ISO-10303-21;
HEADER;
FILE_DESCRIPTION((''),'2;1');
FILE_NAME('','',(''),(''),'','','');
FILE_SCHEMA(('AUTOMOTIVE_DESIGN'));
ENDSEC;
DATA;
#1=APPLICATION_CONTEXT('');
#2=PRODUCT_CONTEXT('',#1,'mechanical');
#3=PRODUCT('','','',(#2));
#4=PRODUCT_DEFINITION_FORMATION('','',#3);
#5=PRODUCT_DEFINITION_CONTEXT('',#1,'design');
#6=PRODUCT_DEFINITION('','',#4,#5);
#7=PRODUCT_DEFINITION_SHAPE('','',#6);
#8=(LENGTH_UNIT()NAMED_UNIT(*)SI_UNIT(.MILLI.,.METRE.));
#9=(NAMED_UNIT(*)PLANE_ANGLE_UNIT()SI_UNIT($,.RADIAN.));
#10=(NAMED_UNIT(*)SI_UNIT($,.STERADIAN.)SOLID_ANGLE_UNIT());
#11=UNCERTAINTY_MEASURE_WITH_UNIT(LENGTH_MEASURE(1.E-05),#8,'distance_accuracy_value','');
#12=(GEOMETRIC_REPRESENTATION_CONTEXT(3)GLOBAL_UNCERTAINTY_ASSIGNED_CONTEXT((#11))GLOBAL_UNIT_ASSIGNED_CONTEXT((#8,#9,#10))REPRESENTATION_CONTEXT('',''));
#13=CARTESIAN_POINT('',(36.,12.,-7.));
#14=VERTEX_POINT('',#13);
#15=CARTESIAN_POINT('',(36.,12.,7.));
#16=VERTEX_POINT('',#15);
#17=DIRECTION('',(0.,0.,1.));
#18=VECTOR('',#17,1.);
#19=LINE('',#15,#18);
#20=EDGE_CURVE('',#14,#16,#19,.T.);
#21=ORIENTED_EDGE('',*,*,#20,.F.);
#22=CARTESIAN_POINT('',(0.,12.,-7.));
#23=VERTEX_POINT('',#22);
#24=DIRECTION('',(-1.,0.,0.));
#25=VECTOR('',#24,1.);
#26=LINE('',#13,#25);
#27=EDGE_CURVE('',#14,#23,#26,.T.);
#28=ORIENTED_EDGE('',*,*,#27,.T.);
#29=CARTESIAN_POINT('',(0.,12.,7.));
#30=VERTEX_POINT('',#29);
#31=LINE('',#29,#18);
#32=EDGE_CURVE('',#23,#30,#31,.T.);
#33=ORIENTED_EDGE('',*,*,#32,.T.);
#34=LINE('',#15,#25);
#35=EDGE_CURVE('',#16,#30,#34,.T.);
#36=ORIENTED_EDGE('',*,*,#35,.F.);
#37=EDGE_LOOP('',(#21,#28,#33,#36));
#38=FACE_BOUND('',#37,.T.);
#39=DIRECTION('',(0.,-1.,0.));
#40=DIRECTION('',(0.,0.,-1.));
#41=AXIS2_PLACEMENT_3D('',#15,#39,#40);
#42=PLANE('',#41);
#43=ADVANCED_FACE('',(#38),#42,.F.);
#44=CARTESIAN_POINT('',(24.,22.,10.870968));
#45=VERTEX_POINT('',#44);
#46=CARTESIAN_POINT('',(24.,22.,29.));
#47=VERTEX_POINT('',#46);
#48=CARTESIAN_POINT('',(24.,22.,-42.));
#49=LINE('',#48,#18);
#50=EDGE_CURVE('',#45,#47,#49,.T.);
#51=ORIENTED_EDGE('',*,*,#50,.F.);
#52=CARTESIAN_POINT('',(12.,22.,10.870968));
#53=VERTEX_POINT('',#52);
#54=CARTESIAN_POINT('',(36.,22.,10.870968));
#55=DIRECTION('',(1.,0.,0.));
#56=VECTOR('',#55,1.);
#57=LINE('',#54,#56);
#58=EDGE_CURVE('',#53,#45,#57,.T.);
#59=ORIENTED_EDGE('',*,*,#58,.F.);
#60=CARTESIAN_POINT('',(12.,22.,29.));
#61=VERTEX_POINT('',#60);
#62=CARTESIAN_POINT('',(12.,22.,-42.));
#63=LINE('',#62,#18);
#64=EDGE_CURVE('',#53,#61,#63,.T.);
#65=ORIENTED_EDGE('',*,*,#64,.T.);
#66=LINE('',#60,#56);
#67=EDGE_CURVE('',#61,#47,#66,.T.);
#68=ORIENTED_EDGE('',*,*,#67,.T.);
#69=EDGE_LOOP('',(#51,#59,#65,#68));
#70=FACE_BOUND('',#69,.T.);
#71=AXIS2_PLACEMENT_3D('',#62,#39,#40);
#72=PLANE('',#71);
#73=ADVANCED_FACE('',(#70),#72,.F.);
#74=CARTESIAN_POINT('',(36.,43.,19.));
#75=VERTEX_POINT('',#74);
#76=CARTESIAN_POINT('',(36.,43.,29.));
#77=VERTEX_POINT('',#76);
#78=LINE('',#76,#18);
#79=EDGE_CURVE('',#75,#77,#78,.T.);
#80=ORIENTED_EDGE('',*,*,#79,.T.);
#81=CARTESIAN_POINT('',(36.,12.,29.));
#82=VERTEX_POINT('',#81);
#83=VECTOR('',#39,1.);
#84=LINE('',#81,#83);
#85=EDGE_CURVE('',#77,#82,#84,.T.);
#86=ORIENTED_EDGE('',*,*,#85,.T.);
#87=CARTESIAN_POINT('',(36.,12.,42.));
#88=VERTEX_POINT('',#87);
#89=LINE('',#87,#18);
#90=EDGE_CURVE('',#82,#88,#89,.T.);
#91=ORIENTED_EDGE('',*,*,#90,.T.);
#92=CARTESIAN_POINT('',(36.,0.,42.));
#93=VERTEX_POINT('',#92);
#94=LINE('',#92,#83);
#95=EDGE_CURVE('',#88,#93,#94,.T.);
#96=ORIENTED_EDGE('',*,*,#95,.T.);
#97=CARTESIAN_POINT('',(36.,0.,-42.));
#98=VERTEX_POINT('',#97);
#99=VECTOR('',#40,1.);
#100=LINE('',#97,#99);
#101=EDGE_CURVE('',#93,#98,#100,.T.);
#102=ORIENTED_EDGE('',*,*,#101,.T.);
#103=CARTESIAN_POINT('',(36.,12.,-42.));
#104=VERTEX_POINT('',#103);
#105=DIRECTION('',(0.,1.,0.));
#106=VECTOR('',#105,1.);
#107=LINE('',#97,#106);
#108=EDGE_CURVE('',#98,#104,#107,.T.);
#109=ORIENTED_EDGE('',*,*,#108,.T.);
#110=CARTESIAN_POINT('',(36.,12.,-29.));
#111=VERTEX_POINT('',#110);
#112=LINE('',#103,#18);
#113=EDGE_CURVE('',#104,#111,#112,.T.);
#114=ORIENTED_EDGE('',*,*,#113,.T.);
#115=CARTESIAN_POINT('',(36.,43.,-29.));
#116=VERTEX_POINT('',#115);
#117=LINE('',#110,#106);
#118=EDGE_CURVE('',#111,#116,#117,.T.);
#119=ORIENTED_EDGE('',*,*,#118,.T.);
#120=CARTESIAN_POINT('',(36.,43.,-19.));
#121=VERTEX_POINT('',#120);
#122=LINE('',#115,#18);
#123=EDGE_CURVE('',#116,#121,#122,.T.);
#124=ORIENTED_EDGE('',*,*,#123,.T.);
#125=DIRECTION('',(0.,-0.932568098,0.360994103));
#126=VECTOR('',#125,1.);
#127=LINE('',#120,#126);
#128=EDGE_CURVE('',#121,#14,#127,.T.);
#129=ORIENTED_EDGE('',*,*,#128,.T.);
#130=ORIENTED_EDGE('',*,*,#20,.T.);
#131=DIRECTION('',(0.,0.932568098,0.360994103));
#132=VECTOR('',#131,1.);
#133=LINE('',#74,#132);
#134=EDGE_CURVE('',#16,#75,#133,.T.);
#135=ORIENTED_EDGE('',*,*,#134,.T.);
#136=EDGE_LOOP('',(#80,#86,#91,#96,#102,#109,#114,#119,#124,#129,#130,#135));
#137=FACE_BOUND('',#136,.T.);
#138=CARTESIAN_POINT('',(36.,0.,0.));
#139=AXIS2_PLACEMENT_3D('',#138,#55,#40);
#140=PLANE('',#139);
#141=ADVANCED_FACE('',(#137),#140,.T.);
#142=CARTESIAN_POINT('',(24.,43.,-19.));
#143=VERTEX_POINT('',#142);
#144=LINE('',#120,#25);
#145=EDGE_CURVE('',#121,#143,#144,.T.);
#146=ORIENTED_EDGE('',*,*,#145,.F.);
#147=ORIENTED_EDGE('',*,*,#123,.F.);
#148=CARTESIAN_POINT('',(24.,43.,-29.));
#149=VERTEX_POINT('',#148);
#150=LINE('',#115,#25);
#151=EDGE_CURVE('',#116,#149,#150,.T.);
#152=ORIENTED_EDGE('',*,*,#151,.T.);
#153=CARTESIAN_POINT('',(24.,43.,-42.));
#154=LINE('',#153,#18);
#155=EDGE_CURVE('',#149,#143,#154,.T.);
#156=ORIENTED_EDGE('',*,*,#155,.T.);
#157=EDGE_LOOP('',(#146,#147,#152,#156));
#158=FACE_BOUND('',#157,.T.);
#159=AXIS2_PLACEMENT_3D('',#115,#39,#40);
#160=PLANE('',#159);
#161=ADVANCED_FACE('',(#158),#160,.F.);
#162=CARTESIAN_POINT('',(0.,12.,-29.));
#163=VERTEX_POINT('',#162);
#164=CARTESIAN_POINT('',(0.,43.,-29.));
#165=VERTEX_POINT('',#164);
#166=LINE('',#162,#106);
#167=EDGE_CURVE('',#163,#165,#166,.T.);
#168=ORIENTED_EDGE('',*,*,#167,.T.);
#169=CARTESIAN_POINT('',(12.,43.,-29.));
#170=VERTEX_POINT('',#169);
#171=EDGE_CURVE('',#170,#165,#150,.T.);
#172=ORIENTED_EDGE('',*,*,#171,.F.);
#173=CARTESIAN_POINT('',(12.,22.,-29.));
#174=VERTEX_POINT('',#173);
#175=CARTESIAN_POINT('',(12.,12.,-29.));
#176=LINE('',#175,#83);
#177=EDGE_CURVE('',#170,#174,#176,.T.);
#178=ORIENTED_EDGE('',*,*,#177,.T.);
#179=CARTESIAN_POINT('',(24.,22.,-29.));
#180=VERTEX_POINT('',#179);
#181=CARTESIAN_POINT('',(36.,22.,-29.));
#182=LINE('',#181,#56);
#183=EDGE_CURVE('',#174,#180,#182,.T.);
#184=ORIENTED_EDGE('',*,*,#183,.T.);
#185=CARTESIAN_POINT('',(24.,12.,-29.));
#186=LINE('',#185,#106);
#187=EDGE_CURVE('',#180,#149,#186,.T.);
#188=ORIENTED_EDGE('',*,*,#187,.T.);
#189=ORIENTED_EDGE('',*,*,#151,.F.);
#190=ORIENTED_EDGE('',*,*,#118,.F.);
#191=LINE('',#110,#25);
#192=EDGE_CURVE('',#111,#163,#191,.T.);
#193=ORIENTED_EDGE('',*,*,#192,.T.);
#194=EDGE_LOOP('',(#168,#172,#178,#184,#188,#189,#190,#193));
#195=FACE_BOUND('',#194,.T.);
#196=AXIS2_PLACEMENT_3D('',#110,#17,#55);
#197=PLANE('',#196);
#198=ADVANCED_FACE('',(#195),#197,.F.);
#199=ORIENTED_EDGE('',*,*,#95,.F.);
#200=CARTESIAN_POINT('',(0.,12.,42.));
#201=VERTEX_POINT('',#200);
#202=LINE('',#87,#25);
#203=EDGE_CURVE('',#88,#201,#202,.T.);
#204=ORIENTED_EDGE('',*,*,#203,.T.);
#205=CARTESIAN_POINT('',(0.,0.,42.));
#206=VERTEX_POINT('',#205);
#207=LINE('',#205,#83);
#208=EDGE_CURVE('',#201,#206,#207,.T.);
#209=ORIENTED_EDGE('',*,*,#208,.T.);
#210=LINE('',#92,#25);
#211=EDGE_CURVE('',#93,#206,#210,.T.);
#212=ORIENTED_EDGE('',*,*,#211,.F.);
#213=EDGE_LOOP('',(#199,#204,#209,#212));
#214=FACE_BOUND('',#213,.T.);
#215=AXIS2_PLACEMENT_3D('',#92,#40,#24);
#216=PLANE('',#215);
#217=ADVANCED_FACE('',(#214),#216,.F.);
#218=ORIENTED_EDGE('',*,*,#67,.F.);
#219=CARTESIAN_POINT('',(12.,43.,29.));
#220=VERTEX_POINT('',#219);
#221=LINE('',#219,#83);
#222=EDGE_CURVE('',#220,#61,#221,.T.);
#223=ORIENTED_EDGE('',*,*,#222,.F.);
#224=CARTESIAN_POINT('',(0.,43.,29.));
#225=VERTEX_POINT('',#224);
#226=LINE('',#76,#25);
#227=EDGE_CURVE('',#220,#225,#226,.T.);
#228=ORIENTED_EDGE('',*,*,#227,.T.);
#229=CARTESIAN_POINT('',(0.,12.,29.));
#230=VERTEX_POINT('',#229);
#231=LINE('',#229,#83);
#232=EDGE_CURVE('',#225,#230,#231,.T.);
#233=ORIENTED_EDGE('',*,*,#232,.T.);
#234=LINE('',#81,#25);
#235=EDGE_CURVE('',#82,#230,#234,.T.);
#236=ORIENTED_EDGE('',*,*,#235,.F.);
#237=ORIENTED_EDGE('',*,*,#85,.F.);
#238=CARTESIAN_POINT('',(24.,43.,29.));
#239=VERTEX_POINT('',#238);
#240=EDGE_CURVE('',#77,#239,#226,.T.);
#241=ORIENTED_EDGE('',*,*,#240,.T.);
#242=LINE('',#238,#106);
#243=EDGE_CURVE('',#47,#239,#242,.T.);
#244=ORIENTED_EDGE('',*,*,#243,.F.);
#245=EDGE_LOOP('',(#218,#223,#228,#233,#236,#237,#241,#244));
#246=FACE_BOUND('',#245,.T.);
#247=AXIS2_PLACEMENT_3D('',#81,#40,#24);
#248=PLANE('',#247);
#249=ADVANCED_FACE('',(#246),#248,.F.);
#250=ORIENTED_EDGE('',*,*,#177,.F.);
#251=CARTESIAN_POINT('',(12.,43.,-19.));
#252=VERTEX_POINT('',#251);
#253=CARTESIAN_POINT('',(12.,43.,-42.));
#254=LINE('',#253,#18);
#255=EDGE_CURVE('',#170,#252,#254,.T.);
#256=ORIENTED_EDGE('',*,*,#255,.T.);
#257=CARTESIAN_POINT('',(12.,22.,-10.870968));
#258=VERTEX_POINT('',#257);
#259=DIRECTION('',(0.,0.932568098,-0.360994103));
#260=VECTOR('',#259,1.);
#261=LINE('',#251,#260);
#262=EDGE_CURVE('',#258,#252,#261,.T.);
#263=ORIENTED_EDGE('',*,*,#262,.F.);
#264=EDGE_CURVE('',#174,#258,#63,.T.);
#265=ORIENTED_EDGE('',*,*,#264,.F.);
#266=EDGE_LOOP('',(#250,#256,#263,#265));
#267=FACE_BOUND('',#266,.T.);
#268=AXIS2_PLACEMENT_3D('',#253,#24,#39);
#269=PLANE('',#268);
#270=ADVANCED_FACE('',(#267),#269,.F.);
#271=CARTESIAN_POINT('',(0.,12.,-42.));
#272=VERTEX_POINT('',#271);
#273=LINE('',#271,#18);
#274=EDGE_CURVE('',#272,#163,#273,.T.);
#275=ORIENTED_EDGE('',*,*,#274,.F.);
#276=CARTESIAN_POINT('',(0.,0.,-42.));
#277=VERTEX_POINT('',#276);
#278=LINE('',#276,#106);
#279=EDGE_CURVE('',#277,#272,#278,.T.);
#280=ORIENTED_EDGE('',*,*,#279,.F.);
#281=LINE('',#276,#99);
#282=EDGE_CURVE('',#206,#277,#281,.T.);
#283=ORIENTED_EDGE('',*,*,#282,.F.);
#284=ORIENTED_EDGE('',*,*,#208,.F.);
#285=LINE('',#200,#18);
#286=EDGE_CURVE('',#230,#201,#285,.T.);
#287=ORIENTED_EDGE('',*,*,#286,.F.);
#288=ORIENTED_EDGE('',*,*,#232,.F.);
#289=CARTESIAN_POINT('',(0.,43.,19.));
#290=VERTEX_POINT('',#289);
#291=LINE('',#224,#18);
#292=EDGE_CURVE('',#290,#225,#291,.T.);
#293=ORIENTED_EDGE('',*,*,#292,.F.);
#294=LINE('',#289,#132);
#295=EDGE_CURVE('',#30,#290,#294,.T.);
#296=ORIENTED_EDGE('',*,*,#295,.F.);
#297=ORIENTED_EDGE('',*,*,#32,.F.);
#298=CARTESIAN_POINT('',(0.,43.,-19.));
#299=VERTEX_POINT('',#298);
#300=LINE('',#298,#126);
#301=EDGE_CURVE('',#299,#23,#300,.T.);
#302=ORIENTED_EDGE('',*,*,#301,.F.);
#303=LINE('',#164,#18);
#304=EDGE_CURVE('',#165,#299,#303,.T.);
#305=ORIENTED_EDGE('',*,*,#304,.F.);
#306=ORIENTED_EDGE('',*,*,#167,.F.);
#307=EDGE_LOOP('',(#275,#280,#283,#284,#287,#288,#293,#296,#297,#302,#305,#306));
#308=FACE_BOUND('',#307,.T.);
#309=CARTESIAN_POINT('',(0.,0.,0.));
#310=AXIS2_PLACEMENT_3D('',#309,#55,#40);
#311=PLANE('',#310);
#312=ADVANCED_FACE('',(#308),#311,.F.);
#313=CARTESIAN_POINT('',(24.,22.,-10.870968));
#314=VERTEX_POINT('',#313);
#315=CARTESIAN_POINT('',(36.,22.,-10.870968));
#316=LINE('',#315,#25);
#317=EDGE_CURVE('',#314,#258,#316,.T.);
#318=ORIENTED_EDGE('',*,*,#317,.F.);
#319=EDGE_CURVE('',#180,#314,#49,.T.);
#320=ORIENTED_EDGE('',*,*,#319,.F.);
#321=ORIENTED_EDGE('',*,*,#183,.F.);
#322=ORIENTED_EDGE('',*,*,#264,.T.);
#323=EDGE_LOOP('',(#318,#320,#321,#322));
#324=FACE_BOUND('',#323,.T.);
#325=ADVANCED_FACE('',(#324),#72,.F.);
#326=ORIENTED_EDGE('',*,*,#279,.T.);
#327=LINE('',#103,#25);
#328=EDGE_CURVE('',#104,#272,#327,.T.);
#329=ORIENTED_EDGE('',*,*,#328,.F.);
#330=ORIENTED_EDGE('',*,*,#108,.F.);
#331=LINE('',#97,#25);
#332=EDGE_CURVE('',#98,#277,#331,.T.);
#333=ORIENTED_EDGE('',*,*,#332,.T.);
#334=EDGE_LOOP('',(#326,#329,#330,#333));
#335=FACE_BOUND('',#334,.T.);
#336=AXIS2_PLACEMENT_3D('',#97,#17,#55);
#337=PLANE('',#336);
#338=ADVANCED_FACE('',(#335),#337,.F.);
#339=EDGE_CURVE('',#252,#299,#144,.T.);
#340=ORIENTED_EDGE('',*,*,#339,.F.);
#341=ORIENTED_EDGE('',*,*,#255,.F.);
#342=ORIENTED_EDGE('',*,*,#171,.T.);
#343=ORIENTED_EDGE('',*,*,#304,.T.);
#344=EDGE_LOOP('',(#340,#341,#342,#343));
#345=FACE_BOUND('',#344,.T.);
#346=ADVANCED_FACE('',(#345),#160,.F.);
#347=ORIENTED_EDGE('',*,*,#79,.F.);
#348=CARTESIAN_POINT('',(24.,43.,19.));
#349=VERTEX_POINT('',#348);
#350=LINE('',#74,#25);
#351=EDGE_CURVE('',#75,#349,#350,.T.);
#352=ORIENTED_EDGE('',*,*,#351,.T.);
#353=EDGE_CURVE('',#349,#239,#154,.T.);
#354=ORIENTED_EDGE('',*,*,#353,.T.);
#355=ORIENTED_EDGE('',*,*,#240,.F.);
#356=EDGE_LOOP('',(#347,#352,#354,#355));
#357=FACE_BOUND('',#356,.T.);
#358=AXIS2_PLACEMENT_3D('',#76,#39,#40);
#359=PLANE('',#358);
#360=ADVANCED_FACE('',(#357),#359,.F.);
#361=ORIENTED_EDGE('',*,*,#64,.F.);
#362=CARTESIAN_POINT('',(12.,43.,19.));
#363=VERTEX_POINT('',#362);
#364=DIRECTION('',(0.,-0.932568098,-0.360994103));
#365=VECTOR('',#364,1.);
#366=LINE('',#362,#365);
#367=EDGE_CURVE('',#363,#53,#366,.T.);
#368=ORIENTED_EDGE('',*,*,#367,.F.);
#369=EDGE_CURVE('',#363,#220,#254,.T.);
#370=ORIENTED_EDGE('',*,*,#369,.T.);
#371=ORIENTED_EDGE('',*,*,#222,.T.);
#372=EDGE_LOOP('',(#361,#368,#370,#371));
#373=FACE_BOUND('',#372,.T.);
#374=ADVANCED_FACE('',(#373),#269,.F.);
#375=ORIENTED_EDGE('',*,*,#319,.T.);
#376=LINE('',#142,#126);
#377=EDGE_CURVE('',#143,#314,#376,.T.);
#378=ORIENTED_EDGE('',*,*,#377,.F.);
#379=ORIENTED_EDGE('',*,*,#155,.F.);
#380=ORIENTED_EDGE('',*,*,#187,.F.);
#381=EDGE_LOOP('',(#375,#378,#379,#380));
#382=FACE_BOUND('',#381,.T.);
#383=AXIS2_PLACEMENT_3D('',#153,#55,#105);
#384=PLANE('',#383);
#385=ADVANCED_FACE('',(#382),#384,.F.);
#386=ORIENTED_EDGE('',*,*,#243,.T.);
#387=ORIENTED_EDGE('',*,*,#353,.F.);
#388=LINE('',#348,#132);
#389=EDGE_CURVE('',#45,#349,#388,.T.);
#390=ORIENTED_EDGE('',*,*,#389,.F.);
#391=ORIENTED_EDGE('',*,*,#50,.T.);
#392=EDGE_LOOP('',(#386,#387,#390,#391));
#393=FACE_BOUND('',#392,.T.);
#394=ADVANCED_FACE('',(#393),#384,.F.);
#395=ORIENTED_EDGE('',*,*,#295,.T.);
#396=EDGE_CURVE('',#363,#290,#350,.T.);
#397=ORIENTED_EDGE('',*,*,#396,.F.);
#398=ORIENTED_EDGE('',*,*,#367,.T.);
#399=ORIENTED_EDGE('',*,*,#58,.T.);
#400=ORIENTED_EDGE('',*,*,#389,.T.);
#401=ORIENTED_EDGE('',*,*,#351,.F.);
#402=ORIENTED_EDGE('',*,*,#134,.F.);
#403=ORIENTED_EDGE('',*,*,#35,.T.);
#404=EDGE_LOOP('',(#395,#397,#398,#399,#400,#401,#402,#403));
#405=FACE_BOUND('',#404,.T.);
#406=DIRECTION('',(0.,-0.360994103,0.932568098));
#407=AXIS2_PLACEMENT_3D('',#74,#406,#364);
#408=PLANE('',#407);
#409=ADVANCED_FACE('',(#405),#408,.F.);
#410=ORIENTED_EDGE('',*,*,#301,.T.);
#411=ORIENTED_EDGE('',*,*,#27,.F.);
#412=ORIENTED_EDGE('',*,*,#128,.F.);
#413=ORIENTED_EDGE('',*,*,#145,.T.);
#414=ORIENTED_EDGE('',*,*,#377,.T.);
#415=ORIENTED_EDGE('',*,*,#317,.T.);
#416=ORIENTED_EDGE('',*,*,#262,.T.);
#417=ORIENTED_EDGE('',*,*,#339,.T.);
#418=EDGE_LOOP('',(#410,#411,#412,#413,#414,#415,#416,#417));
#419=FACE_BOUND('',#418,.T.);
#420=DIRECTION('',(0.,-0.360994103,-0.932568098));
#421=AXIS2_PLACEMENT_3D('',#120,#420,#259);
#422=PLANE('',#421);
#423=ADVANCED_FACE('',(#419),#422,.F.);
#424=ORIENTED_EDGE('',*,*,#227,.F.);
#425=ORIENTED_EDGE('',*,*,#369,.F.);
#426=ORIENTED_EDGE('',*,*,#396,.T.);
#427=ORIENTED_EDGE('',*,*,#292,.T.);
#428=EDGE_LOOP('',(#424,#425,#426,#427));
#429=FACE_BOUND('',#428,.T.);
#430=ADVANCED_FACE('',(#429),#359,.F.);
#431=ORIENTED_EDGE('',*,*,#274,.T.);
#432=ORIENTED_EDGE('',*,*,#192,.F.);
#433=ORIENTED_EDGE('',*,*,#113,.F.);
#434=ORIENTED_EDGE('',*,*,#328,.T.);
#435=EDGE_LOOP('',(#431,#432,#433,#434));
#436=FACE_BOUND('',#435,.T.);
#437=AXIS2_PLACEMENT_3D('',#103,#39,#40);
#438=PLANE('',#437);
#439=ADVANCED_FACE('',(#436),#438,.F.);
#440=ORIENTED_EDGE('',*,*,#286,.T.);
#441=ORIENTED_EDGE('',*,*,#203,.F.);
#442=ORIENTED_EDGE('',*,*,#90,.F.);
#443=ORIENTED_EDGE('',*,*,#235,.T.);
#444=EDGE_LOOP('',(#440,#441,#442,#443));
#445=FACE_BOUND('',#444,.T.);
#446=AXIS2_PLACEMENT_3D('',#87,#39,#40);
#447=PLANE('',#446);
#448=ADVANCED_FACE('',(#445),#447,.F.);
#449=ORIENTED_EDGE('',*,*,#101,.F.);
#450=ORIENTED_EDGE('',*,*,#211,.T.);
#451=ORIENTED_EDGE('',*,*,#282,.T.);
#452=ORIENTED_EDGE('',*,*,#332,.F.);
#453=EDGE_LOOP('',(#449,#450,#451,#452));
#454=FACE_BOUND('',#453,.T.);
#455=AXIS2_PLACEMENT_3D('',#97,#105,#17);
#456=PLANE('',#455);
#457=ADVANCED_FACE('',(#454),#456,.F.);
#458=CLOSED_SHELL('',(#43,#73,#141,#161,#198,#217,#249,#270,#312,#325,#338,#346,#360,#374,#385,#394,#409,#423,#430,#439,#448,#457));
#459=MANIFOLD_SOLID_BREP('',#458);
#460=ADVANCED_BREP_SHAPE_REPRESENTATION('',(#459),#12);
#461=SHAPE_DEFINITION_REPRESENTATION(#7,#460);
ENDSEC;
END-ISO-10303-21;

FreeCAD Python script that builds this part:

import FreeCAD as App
import Part
import Sketcher

V = App.Vector
Q = App.Units.Quantity

doc = App.newDocument("Part")
params = doc.addObject("Spreadsheet::Sheet", "Params")
for row, (alias, value) in enumerate([
    ("sketch1_width", "12 mm"),
    ("sketch1_width2", "31 mm"),
    ("sketch1_height", "84 mm"),
    ("sketch1_height2", "13 mm"),
    ("sketch1_height3", "10 mm"),
    ("pad1_length", "36 mm"),
    ("sketch2_width", "12 mm"),
    ("sketch2_height", "21 mm"),
], start=1):
    params.set(f"A{row}", alias)
    params.set(f"B{row}", "=" + value)
    params.setAlias(f"B{row}", alias)

body = doc.addObject("PartDesign::Body", "Body")

# Sketch on YZ plane
sketch1 = body.newObject("Sketcher::SketchObject", "Sketch")
sketch1.AttachmentSupport = (doc.getObject("YZ_Plane"), [""])
sketch1.MapMode = "FlatFace"
sketch1.addGeometry([
    Part.LineSegment(V(0, 42, 0), V(0, -42, 0)),  # 0
    Part.LineSegment(V(0, -42, 0), V(12, -42, 0)),  # 1
    Part.LineSegment(V(12, -42, 0), V(12, -29, 0)),  # 2
    Part.LineSegment(V(12, -29, 0), V(43, -29, 0)),  # 3
    Part.LineSegment(V(43, -29, 0), V(43, -19, 0)),  # 4
    Part.LineSegment(V(43, -19, 0), V(12, -7, 0)),  # 5
    Part.LineSegment(V(12, -7, 0), V(12, 7, 0)),  # 6
    Part.LineSegment(V(12, 7, 0), V(43, 19, 0)),  # 7
    Part.LineSegment(V(43, 19, 0), V(43, 29, 0)),  # 8
    Part.LineSegment(V(43, 29, 0), V(12, 29, 0)),  # 9
    Part.LineSegment(V(12, 29, 0), V(12, 42, 0)),  # 10
    Part.LineSegment(V(12, 42, 0), V(0, 42, 0)),  # 11
], False)
sketch1.addConstraint([
    Sketcher.Constraint("Coincident", 0, 2, 1, 1),
    Sketcher.Constraint("Coincident", 1, 2, 2, 1),
    Sketcher.Constraint("Coincident", 2, 2, 3, 1),
    Sketcher.Constraint("Coincident", 3, 2, 4, 1),
    Sketcher.Constraint("Coincident", 4, 2, 5, 1),
    Sketcher.Constraint("Coincident", 5, 2, 6, 1),
    Sketcher.Constraint("Coincident", 6, 2, 7, 1),
    Sketcher.Constraint("Coincident", 7, 2, 8, 1),
    Sketcher.Constraint("Coincident", 8, 2, 9, 1),
    Sketcher.Constraint("Coincident", 9, 2, 10, 1),
    Sketcher.Constraint("Coincident", 10, 2, 11, 1),
    Sketcher.Constraint("Coincident", 11, 2, 0, 1),
    Sketcher.Constraint("Vertical", 0),
    Sketcher.Constraint("Horizontal", 1),
    Sketcher.Constraint("Vertical", 2),
    Sketcher.Constraint("Horizontal", 3),
    Sketcher.Constraint("Vertical", 4),
    Sketcher.Constraint("Vertical", 6),
    Sketcher.Constraint("Vertical", 8),
    Sketcher.Constraint("Horizontal", 9),
    Sketcher.Constraint("Vertical", 10),
    Sketcher.Constraint("Horizontal", 11),
    Sketcher.Constraint("Symmetric", 0, 2, 11, 2, -1, 1),
    Sketcher.Constraint("Symmetric", 4, 2, 7, 2, -1),
    Sketcher.Constraint("Symmetric", 2, 2, 9, 2, -1),
    Sketcher.Constraint("Vertical", 2, 2, 5, 2),
    Sketcher.Constraint("Equal", 5, 7),
    Sketcher.Constraint("DistanceX", 1, 1, 1, 2, Q("12 mm")),
    Sketcher.Constraint("DistanceX", 3, 1, 3, 2, Q("31 mm")),
    Sketcher.Constraint("DistanceY", 0, 2, 0, 1, Q("84 mm")),
    Sketcher.Constraint("DistanceY", 2, 1, 2, 2, Q("13 mm")),
    Sketcher.Constraint("DistanceY", 4, 1, 4, 2, Q("10 mm")),
    Sketcher.Constraint("DistanceY", 6, 1, 6, 2, Q("14 mm")),
])
sketch1.setExpression("Constraints[27]", "Params.sketch1_width")
sketch1.setExpression("Constraints[28]", "Params.sketch1_width2")
sketch1.setExpression("Constraints[29]", "Params.sketch1_height")
sketch1.setExpression("Constraints[30]", "Params.sketch1_height2")
sketch1.setExpression("Constraints[31]", "Params.sketch1_height3")
pad1 = body.newObject("PartDesign::Pad", "Pad")
pad1.Profile = sketch1
pad1.setExpression("Length", "Params.pad1_length")

# Sketch on XY plane
sketch2 = body.newObject("Sketcher::SketchObject", "Sketch001")
sketch2.AttachmentSupport = (doc.getObject("XY_Plane"), [""])
sketch2.MapMode = "FlatFace"
sketch2.AttachmentOffset = App.Placement(V(0, 0, 29), App.Rotation())
sketch2.addGeometry([
    Part.LineSegment(V(12, 43, 0), V(12, 22, 0)),
    Part.LineSegment(V(12, 22, 0), V(24, 22, 0)),
    Part.LineSegment(V(24, 22, 0), V(24, 43, 0)),
    Part.LineSegment(V(24, 43, 0), V(12, 43, 0)),
], False)
sketch2.addConstraint([
    Sketcher.Constraint("Coincident", 0, 2, 1, 1),
    Sketcher.Constraint("Coincident", 1, 2, 2, 1),
    Sketcher.Constraint("Coincident", 2, 2, 3, 1),
    Sketcher.Constraint("Coincident", 3, 2, 0, 1),
    Sketcher.Constraint("Vertical", 0),
    Sketcher.Constraint("Horizontal", 1),
    Sketcher.Constraint("Vertical", 2),
    Sketcher.Constraint("Horizontal", 3),
    Sketcher.Constraint("DistanceX", 1, 1, 1, 2, Q("12 mm")),
    Sketcher.Constraint("DistanceY", 0, 2, 0, 1, Q("21 mm")),
    Sketcher.Constraint("DistanceX", -1, 1, 0, 2, Q("12 mm")),
    Sketcher.Constraint("DistanceY", -1, 1, 0, 2, Q("22 mm")),
])
sketch2.setExpression("Constraints[8]", "Params.sketch2_width")
sketch2.setExpression("Constraints[9]", "Params.sketch2_height")
pocket1 = body.newObject("PartDesign::Pocket", "Pocket")
pocket1.Profile = sketch2
pocket1.Type = "ThroughAll"

doc.recompute()
